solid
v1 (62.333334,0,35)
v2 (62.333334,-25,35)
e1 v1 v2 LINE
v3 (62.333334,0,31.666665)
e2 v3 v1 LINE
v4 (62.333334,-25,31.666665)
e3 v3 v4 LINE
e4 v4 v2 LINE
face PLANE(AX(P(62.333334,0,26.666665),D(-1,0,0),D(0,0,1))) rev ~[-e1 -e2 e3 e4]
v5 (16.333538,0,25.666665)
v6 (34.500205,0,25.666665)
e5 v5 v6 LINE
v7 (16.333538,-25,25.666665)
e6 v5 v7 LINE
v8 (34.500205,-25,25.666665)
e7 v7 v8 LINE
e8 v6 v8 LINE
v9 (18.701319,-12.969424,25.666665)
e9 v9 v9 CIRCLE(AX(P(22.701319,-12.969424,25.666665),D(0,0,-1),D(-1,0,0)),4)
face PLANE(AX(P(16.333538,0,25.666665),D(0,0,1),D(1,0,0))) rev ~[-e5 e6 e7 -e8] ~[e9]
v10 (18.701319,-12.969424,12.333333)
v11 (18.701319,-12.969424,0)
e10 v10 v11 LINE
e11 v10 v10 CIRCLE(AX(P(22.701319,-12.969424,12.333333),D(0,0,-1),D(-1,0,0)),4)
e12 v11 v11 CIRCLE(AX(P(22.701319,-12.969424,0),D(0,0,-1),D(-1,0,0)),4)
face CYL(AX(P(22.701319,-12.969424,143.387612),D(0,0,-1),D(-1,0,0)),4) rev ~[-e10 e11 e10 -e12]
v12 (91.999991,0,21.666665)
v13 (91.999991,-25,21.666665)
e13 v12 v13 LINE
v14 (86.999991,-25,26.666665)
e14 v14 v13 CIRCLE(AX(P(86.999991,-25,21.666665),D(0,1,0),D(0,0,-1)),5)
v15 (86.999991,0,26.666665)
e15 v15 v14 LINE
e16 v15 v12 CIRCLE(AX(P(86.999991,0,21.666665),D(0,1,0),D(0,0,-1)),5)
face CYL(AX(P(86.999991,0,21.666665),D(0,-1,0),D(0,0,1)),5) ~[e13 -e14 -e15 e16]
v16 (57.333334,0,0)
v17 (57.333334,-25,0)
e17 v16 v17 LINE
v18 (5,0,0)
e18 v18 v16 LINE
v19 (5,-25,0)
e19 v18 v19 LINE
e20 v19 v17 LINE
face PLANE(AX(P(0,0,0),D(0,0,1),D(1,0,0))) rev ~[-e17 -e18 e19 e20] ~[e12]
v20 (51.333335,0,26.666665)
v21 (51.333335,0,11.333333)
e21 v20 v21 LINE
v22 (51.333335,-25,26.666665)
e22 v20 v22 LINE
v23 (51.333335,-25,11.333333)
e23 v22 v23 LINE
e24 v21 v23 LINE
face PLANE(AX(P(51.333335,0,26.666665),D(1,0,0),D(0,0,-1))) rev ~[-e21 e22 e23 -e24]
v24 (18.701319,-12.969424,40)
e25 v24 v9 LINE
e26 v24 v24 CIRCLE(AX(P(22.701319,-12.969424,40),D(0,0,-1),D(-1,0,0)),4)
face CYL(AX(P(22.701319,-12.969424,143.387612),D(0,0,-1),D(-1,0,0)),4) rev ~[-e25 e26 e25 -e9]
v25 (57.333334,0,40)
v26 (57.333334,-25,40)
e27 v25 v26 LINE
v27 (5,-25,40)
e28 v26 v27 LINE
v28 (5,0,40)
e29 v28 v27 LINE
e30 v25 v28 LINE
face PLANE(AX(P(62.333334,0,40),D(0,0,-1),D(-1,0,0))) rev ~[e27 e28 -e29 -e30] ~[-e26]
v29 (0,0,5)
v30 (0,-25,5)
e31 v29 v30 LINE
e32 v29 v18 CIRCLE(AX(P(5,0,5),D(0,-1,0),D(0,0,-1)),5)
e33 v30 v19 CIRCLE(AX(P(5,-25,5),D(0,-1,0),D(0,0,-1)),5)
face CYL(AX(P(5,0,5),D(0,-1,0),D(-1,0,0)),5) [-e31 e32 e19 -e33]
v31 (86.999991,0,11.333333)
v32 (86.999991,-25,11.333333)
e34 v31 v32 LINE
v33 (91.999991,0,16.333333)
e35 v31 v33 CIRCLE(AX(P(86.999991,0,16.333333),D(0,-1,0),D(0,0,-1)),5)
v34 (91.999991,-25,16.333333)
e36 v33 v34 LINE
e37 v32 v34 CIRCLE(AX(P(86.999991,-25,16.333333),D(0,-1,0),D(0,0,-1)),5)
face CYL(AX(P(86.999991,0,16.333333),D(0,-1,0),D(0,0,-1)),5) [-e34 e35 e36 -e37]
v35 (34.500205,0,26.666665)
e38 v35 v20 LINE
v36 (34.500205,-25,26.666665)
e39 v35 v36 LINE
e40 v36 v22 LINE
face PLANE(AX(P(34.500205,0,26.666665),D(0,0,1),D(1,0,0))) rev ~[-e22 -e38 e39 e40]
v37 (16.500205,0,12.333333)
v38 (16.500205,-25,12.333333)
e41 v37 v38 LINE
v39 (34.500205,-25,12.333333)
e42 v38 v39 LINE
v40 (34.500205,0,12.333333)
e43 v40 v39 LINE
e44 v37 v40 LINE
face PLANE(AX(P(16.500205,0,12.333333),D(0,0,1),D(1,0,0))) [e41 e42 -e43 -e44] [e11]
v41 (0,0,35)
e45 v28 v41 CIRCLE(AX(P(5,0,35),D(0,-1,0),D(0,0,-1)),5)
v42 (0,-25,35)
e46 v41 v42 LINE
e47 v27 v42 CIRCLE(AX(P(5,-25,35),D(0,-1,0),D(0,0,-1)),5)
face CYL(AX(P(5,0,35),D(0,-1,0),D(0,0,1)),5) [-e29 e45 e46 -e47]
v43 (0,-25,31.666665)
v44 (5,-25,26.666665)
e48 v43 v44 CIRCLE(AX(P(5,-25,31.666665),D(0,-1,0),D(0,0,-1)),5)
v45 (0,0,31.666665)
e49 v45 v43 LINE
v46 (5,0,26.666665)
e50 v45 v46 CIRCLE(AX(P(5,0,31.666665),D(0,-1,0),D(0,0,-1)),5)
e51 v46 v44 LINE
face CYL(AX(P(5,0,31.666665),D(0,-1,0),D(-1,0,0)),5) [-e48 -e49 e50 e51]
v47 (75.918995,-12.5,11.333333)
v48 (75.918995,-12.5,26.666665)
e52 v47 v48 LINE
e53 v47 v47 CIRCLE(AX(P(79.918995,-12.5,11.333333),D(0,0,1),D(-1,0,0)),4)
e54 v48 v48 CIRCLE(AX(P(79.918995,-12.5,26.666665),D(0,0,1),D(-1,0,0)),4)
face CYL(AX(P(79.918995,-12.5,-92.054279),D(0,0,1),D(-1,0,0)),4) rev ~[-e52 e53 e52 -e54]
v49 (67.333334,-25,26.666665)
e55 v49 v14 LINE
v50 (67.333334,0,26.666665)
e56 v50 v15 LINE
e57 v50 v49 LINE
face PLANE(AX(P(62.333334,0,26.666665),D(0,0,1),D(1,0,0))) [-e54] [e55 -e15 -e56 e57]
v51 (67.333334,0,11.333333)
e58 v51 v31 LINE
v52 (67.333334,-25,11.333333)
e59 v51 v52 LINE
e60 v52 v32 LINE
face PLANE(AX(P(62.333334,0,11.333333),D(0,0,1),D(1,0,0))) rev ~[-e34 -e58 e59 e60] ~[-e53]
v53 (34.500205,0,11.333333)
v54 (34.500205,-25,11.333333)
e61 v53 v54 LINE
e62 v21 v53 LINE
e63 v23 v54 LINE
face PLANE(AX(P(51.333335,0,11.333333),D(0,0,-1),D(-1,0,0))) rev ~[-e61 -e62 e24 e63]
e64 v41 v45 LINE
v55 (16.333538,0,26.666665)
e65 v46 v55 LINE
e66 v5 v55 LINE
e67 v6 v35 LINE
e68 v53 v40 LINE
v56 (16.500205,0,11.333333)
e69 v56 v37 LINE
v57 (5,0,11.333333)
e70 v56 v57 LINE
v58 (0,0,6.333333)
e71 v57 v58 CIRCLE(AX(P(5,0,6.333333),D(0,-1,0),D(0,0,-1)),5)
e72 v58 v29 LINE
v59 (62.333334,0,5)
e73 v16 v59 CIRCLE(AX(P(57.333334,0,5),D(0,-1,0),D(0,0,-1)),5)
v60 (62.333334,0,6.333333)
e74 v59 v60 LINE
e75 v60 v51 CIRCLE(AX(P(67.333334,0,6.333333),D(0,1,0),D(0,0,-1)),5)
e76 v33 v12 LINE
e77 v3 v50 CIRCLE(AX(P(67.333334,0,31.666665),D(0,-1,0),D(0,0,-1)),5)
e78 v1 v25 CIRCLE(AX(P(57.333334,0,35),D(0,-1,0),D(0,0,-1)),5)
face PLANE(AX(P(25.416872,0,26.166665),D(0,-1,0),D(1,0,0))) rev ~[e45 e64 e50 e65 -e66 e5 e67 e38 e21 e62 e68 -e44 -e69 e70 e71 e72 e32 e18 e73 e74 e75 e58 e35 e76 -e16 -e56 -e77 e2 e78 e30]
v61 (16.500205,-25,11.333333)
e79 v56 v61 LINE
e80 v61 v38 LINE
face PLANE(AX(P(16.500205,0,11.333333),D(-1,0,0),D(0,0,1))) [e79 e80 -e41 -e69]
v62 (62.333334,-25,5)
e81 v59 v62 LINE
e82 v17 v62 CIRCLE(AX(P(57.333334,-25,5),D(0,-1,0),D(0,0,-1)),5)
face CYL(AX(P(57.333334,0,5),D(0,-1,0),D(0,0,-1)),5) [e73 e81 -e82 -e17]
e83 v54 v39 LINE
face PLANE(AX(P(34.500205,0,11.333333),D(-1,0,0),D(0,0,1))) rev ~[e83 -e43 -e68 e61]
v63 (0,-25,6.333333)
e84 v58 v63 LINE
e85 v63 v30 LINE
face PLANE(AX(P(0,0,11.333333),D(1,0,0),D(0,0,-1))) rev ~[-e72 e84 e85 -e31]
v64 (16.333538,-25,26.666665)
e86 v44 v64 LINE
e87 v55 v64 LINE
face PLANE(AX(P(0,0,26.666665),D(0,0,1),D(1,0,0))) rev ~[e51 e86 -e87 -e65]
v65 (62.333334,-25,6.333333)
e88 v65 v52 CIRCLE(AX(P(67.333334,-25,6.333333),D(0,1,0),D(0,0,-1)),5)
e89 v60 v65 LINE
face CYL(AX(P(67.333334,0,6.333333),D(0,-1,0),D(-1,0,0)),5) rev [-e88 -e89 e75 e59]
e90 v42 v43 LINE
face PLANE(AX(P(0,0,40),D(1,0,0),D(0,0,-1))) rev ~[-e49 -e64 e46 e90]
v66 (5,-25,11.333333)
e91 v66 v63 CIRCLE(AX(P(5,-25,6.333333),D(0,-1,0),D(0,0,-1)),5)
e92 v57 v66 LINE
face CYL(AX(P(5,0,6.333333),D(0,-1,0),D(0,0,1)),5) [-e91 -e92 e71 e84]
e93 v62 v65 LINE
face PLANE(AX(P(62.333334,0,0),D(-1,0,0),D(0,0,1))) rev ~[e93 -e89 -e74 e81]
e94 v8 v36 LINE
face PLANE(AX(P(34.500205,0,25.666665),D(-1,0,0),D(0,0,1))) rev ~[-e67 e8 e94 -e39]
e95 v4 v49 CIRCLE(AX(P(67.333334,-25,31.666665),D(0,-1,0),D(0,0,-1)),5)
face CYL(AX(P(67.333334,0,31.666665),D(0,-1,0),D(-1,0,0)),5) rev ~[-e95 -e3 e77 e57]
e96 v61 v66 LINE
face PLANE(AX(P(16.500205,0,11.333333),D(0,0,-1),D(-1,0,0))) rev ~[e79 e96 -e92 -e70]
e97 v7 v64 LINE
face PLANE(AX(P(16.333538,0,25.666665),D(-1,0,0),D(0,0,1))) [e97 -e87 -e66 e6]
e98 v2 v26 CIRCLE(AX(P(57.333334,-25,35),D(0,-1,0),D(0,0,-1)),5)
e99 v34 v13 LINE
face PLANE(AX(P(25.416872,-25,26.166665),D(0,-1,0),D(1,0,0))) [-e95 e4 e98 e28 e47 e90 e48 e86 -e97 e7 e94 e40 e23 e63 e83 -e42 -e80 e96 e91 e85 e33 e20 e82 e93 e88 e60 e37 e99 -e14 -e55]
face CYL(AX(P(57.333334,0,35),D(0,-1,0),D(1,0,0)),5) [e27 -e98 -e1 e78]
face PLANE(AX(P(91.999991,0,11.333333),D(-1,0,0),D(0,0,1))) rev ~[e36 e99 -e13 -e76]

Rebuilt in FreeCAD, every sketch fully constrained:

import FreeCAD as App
import Part
import Sketcher

V = App.Vector
Q = App.Units.Quantity


def edges_at(feature, points):
    """Names of the edges that pass closest to the given points."""
    edges = feature.Shape.Edges
    near = lambda p: min(range(len(edges)), key=lambda i: edges[i].distToShape(Part.Vertex(*p))[0])
    return sorted({f"Edge{near(p) + 1}" for p in points})


def add_polygon(sketch, points):
    """Adds a closed chain of lines whose ends are joined by coincident constraints."""
    first, n = sketch.GeometryCount, len(points)
    for a, b in zip(points, points[1:] + points[:1]):
        sketch.addGeometry(Part.LineSegment(App.Vector(*a, 0), App.Vector(*b, 0)), False)
    for i in range(n):
        sketch.addConstraint(Sketcher.Constraint("Coincident", first + i, 2, first + (i + 1) % n, 1))

doc = App.newDocument("Part")
body = doc.addObject("PartDesign::Body", "Body")

# Sketch on XZ plane
sketch1 = body.newObject("Sketcher::SketchObject", "Sketch")
sketch1.AttachmentSupport = (doc.getObject("XZ_Plane"), [""])
sketch1.MapMode = "FlatFace"
add_polygon(sketch1, [(16.3, 26.7), (16.3, 25.7), (34.5, 25.7), (34.5, 26.7), (51.3, 26.7), (51.3, 11.3), (34.5, 11.3), (34.5, 12.3), (16.5, 12.3), (16.5, 11.3), (0, 11.3), (0, 0), (62.3, 0), (62.3, 11.3), (92, 11.3), (92, 26.7), (62.3, 26.7), (62.3, 40), (0, 40), (0, 26.7)])  # lines 0-19
sketch1.addConstraint([
    Sketcher.Constraint("Vertical", 0),
    Sketcher.Constraint("Horizontal", 1),
    Sketcher.Constraint("Vertical", 2),
    Sketcher.Constraint("Horizontal", 3),
    Sketcher.Constraint("Vertical", 4),
    Sketcher.Constraint("Horizontal", 5),
    Sketcher.Constraint("Vertical", 6),
    Sketcher.Constraint("Horizontal", 7),
    Sketcher.Constraint("Vertical", 8),
    Sketcher.Constraint("Horizontal", 9),
    Sketcher.Constraint("Vertical", 10),
    Sketcher.Constraint("Horizontal", 11),
    Sketcher.Constraint("Vertical", 12),
    Sketcher.Constraint("Horizontal", 13),
    Sketcher.Constraint("Vertical", 14),
    Sketcher.Constraint("Horizontal", 15),
    Sketcher.Constraint("Vertical", 16),
    Sketcher.Constraint("Horizontal", 17),
    Sketcher.Constraint("Vertical", 18),
    Sketcher.Constraint("Horizontal", 19),
    Sketcher.Constraint("Coincident", 10, 2, -1, 1),
    Sketcher.Constraint("PointOnObject", 17, 2, -2),
    Sketcher.Constraint("Horizontal", 5, 2, 8, 2),
    Sketcher.Constraint("Horizontal", 9, 2, 12, 2),
    Sketcher.Constraint("Horizontal", 3, 2, 14, 2),
    Sketcher.Constraint("Horizontal", 15, 2, 18, 2),
    Sketcher.Constraint("Vertical", 2, 2, 5, 2),
    Sketcher.Constraint("Vertical", 12, 2, 15, 2),
    Sketcher.Constraint("Equal", 2, 6),
    Sketcher.Constraint("DistanceX", 7, 2, 7, 1, Q("18 mm")),
    Sketcher.Constraint("DistanceY", 0, 2, 0, 1, Q("1 mm")),
    Sketcher.Constraint("DistanceY", -1, 1, 16, 2, Q("40 mm")),
    Sketcher.Constraint("DistanceX", 4, 2, 11, 2, Q("10.999999 mm")),
    Sketcher.Constraint("DistanceX", 3, 1, 3, 2, Q("16.83313 mm")),
    Sketcher.Constraint("DistanceX", 1, 1, 1, 2, Q("18.166667 mm")),
    Sketcher.Constraint("DistanceX", 9, 2, 9, 1, Q("16.500205 mm")),
    Sketcher.Constraint("DistanceX", 13, 1, 13, 2, Q("29.666657 mm")),
    Sketcher.Constraint("DistanceY", 4, 2, 4, 1, Q("15.333332 mm")),
    Sketcher.Constraint("DistanceY", 10, 2, 10, 1, Q("11.333333 mm")),
])
pad1 = body.newObject("PartDesign::Pad", "Pad")
pad1.Profile = sketch1
pad1.Length = 25
doc.recompute()

fillet = body.newObject("PartDesign::Fillet", "Fillet")
fillet.Base = (pad1, edges_at(pad1, [(62.333, -12.5, 40)]))
fillet.Radius = 5
doc.recompute()

fillet2 = body.newObject("PartDesign::Fillet", "Fillet001")
fillet2.Base = (fillet, edges_at(fillet, [(62.333, -12.5, 26.667)]))
fillet2.Radius = 5
doc.recompute()

fillet3 = body.newObject("PartDesign::Fillet", "Fillet002")
fillet3.Base = (fillet2, edges_at(fillet2, [(92, -12.5, 26.667)]))
fillet3.Radius = 5
doc.recompute()

fillet4 = body.newObject("PartDesign::Fillet", "Fillet003")
fillet4.Base = (fillet3, edges_at(fillet3, [(0, -12.5, 40)]))
fillet4.Radius = 5
doc.recompute()

fillet5 = body.newObject("PartDesign::Fillet", "Fillet004")
fillet5.Base = (fillet4, edges_at(fillet4, [(0, -12.5, 26.667)]))
fillet5.Radius = 5
doc.recompute()

fillet6 = body.newObject("PartDesign::Fillet", "Fillet005")
fillet6.Base = (fillet5, edges_at(fillet5, [(0, -12.5, 11.333)]))
fillet6.Radius = 5
doc.recompute()

fillet7 = body.newObject("PartDesign::Fillet", "Fillet006")
fillet7.Base = (fillet6, edges_at(fillet6, [(0, -12.5, 0)]))
fillet7.Radius = 5
doc.recompute()

fillet8 = body.newObject("PartDesign::Fillet", "Fillet007")
fillet8.Base = (fillet7, edges_at(fillet7, [(62.333, -12.5, 0)]))
fillet8.Radius = 5
doc.recompute()

fillet9 = body.newObject("PartDesign::Fillet", "Fillet008")
fillet9.Base = (fillet8, edges_at(fillet8, [(62.333, -12.5, 11.333)]))
fillet9.Radius = 5
doc.recompute()

fillet10 = body.newObject("PartDesign::Fillet", "Fillet009")
fillet10.Base = (fillet9, edges_at(fillet9, [(92, -12.5, 11.333)]))
fillet10.Radius = 5

# Sketch on XY plane
sketch2 = body.newObject("Sketcher::SketchObject", "Sketch001")
sketch2.AttachmentSupport = (doc.getObject("XY_Plane"), [""])
sketch2.MapMode = "FlatFace"
sketch2.AttachmentOffset = App.Placement(V(0, 0, 40), App.Rotation())
sketch2.addGeometry(Part.Circle(V(22.7, -13, 0), V(0, 0, 1), 4), False)
sketch2.addConstraint([
    Sketcher.Constraint("Diameter", 0, Q("8 mm")),
    Sketcher.Constraint("DistanceX", -1, 1, 0, 3, Q("22.701319 mm")),
    Sketcher.Constraint("DistanceY", 0, 3, -1, 1, Q("12.969424 mm")),
])
doc.recompute()
hole = body.newObject("PartDesign::Hole", "Hole")
hole.Profile = sketch2
hole.ThreadType = "None"
hole.Diameter = 8
hole.DepthType = "ThroughAll"

# Sketch on XY plane
sketch3 = body.newObject("Sketcher::SketchObject", "Sketch002")
sketch3.AttachmentSupport = (doc.getObject("XY_Plane"), [""])
sketch3.MapMode = "FlatFace"
sketch3.AttachmentOffset = App.Placement(V(0, 0, 11.333333), App.Rotation())
sketch3.addGeometry(Part.Circle(V(79.9, -12.5, 0), V(0, 0, 1), 4), False)
sketch3.addConstraint([
    Sketcher.Constraint("Diameter", 0, Q("8 mm")),
    Sketcher.Constraint("DistanceY", 0, 3, -1, 1, Q("12.5 mm")),
    Sketcher.Constraint("DistanceX", -1, 1, 0, 3, Q("79.918995 mm")),
])
doc.recompute()
hole2 = body.newObject("PartDesign::Hole", "Hole001")
hole2.Profile = sketch3
hole2.ThreadType = "None"
hole2.Diameter = 8
hole2.DepthType = "ThroughAll"
hole2.Reversed = True

doc.recompute()
